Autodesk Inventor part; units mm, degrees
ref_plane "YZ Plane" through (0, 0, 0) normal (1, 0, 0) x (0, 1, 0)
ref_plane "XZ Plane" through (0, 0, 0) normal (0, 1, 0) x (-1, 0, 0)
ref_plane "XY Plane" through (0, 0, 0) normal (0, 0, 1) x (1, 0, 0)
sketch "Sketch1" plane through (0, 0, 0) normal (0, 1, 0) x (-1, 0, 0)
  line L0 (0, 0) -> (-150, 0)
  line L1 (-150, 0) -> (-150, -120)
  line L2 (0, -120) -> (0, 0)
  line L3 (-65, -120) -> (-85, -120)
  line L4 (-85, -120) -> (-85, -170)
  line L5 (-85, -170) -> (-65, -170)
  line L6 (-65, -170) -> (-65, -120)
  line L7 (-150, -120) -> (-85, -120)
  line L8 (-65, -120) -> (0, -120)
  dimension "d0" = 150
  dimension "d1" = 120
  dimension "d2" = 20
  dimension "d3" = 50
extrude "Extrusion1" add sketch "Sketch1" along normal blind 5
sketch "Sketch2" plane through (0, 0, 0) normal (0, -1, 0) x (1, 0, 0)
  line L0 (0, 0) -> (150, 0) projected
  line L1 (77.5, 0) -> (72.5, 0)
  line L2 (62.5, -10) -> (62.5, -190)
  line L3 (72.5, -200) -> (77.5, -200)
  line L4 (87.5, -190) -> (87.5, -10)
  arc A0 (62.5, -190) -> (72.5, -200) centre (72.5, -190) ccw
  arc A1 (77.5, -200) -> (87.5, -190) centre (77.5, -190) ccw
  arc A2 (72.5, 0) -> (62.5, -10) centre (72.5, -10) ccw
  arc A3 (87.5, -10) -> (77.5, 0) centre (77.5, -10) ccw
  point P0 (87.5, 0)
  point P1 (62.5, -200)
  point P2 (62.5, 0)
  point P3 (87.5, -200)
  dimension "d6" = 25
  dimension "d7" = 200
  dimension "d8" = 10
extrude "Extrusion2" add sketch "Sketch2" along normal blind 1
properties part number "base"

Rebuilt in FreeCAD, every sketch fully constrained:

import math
import FreeCAD as App
import Part
import Sketcher

V = App.Vector
Q = App.Units.Quantity


def add_polygon(sketch, points):
    """Adds a closed chain of lines whose ends are joined by coincident constraints."""
    first, n = sketch.GeometryCount, len(points)
    for a, b in zip(points, points[1:] + points[:1]):
        sketch.addGeometry(Part.LineSegment(App.Vector(*a, 0), App.Vector(*b, 0)), False)
    for i in range(n):
        sketch.addConstraint(Sketcher.Constraint("Coincident", first + i, 2, first + (i + 1) % n, 1))

doc = App.newDocument("Part")
body = doc.addObject("PartDesign::Body", "Body")

# Sketch on XZ plane
sketch1 = doc.addObject("Sketcher::SketchObject", "Sketch")
body.addObject(sketch1)
sketch1.AttachmentSupport = (doc.XZ_Plane, [""])
sketch1.MapMode = "FlatFace"
add_polygon(sketch1, [(0, -120), (0, 0), (150, 0), (150, -120), (85, -120), (85, -170), (65, -170), (65, -120)])  # lines 0-7
sketch1.addConstraint(Sketcher.Constraint("Vertical", 0))
sketch1.addConstraint(Sketcher.Constraint("Horizontal", 1))
sketch1.addConstraint(Sketcher.Constraint("Vertical", 2))
sketch1.addConstraint(Sketcher.Constraint("Horizontal", 3))
sketch1.addConstraint(Sketcher.Constraint("Vertical", 4))
sketch1.addConstraint(Sketcher.Constraint("Horizontal", 5))
sketch1.addConstraint(Sketcher.Constraint("Vertical", 6))
sketch1.addConstraint(Sketcher.Constraint("Horizontal", 7))
sketch1.addConstraint(Sketcher.Constraint("Coincident", 0, 2, -1, 1))
sketch1.addConstraint(Sketcher.Constraint("Horizontal", 3, 2, 6, 2))
sketch1.addConstraint(Sketcher.Constraint("Equal", 3, 7))
sketch1.addConstraint(Sketcher.Constraint("DistanceX", 1, 1, 1, 2, Q("150 mm")))
sketch1.addConstraint(Sketcher.Constraint("DistanceX", 5, 2, 5, 1, Q("20 mm")))
sketch1.addConstraint(Sketcher.Constraint("DistanceY", 0, 1, 0, 2, Q("120 mm")))
sketch1.addConstraint(Sketcher.Constraint("DistanceY", 4, 2, 4, 1, Q("50 mm")))
pad1 = doc.addObject("PartDesign::Pad", "Pad")
body.addObject(pad1)
pad1.Profile = sketch1
pad1.Length = 5
pad1.Reversed = True

# Sketch on XZ plane
sketch2 = doc.addObject("Sketcher::SketchObject", "Sketch001")
body.addObject(sketch2)
sketch2.AttachmentSupport = (doc.XZ_Plane, [""])
sketch2.MapMode = "FlatFace"
sketch2.addGeometry(Part.LineSegment(V(77.5, 0, 0), V(72.5, 0, 0)), False)
sketch2.addGeometry(Part.ArcOfCircle(Part.Circle(V(72.5, -10, 0), V(0, 0, 1), 10), math.radians(90), math.radians(180)), False)
sketch2.addGeometry(Part.LineSegment(V(62.5, -10, 0), V(62.5, -190, 0)), False)
sketch2.addGeometry(Part.ArcOfCircle(Part.Circle(V(72.5, -190, 0), V(0, 0, 1), 10), math.radians(180), math.radians(270)), False)
sketch2.addGeometry(Part.LineSegment(V(72.5, -200, 0), V(77.5, -200, 0)), False)
sketch2.addGeometry(Part.ArcOfCircle(Part.Circle(V(77.5, -190, 0), V(0, 0, 1), 10), math.radians(-90), math.radians(0)), False)
sketch2.addGeometry(Part.LineSegment(V(87.5, -190, 0), V(87.5, -10, 0)), False)
sketch2.addGeometry(Part.ArcOfCircle(Part.Circle(V(77.5, -10, 0), V(0, 0, 1), 10), math.radians(0), math.radians(90)), False)
sketch2.addConstraint(Sketcher.Constraint("Tangent", 0, 2, 1, 1))
sketch2.addConstraint(Sketcher.Constraint("Tangent", 1, 2, 2, 1))
sketch2.addConstraint(Sketcher.Constraint("Tangent", 2, 2, 3, 1))
sketch2.addConstraint(Sketcher.Constraint("Tangent", 3, 2, 4, 1))
sketch2.addConstraint(Sketcher.Constraint("Tangent", 4, 2, 5, 1))
sketch2.addConstraint(Sketcher.Constraint("Tangent", 5, 2, 6, 1))
sketch2.addConstraint(Sketcher.Constraint("Tangent", 6, 2, 7, 1))
sketch2.addConstraint(Sketcher.Constraint("Tangent", 7, 2, 0, 1))
sketch2.addConstraint(Sketcher.Constraint("Horizontal", 0))
sketch2.addConstraint(Sketcher.Constraint("Vertical", 2))
sketch2.addConstraint(Sketcher.Constraint("Horizontal", 4))
sketch2.addConstraint(Sketcher.Constraint("Vertical", 6))
sketch2.addConstraint(Sketcher.Constraint("Equal", 1, 3))
sketch2.addConstraint(Sketcher.Constraint("Equal", 3, 5))
sketch2.addConstraint(Sketcher.Constraint("Equal", 5, 7))
sketch2.addConstraint(Sketcher.Constraint("PointOnObject", 0, 2, -1))
sketch2.addConstraint(Sketcher.Constraint("Radius", 1, Q("10 mm")))
sketch2.addConstraint(Sketcher.Constraint("DistanceY", 3, 2, -1, 1, Q("200 mm")))
sketch2.addConstraint(Sketcher.Constraint("DistanceX", 2, 2, 5, 2, Q("25 mm")))
sketch2.addConstraint(Sketcher.Constraint("DistanceX", -1, 1, 1, 3, Q("72.5 mm")))
pad2 = doc.addObject("PartDesign::Pad", "Pad001")
body.addObject(pad2)
pad2.Profile = sketch2
pad2.Length = 1

doc.recompute()
